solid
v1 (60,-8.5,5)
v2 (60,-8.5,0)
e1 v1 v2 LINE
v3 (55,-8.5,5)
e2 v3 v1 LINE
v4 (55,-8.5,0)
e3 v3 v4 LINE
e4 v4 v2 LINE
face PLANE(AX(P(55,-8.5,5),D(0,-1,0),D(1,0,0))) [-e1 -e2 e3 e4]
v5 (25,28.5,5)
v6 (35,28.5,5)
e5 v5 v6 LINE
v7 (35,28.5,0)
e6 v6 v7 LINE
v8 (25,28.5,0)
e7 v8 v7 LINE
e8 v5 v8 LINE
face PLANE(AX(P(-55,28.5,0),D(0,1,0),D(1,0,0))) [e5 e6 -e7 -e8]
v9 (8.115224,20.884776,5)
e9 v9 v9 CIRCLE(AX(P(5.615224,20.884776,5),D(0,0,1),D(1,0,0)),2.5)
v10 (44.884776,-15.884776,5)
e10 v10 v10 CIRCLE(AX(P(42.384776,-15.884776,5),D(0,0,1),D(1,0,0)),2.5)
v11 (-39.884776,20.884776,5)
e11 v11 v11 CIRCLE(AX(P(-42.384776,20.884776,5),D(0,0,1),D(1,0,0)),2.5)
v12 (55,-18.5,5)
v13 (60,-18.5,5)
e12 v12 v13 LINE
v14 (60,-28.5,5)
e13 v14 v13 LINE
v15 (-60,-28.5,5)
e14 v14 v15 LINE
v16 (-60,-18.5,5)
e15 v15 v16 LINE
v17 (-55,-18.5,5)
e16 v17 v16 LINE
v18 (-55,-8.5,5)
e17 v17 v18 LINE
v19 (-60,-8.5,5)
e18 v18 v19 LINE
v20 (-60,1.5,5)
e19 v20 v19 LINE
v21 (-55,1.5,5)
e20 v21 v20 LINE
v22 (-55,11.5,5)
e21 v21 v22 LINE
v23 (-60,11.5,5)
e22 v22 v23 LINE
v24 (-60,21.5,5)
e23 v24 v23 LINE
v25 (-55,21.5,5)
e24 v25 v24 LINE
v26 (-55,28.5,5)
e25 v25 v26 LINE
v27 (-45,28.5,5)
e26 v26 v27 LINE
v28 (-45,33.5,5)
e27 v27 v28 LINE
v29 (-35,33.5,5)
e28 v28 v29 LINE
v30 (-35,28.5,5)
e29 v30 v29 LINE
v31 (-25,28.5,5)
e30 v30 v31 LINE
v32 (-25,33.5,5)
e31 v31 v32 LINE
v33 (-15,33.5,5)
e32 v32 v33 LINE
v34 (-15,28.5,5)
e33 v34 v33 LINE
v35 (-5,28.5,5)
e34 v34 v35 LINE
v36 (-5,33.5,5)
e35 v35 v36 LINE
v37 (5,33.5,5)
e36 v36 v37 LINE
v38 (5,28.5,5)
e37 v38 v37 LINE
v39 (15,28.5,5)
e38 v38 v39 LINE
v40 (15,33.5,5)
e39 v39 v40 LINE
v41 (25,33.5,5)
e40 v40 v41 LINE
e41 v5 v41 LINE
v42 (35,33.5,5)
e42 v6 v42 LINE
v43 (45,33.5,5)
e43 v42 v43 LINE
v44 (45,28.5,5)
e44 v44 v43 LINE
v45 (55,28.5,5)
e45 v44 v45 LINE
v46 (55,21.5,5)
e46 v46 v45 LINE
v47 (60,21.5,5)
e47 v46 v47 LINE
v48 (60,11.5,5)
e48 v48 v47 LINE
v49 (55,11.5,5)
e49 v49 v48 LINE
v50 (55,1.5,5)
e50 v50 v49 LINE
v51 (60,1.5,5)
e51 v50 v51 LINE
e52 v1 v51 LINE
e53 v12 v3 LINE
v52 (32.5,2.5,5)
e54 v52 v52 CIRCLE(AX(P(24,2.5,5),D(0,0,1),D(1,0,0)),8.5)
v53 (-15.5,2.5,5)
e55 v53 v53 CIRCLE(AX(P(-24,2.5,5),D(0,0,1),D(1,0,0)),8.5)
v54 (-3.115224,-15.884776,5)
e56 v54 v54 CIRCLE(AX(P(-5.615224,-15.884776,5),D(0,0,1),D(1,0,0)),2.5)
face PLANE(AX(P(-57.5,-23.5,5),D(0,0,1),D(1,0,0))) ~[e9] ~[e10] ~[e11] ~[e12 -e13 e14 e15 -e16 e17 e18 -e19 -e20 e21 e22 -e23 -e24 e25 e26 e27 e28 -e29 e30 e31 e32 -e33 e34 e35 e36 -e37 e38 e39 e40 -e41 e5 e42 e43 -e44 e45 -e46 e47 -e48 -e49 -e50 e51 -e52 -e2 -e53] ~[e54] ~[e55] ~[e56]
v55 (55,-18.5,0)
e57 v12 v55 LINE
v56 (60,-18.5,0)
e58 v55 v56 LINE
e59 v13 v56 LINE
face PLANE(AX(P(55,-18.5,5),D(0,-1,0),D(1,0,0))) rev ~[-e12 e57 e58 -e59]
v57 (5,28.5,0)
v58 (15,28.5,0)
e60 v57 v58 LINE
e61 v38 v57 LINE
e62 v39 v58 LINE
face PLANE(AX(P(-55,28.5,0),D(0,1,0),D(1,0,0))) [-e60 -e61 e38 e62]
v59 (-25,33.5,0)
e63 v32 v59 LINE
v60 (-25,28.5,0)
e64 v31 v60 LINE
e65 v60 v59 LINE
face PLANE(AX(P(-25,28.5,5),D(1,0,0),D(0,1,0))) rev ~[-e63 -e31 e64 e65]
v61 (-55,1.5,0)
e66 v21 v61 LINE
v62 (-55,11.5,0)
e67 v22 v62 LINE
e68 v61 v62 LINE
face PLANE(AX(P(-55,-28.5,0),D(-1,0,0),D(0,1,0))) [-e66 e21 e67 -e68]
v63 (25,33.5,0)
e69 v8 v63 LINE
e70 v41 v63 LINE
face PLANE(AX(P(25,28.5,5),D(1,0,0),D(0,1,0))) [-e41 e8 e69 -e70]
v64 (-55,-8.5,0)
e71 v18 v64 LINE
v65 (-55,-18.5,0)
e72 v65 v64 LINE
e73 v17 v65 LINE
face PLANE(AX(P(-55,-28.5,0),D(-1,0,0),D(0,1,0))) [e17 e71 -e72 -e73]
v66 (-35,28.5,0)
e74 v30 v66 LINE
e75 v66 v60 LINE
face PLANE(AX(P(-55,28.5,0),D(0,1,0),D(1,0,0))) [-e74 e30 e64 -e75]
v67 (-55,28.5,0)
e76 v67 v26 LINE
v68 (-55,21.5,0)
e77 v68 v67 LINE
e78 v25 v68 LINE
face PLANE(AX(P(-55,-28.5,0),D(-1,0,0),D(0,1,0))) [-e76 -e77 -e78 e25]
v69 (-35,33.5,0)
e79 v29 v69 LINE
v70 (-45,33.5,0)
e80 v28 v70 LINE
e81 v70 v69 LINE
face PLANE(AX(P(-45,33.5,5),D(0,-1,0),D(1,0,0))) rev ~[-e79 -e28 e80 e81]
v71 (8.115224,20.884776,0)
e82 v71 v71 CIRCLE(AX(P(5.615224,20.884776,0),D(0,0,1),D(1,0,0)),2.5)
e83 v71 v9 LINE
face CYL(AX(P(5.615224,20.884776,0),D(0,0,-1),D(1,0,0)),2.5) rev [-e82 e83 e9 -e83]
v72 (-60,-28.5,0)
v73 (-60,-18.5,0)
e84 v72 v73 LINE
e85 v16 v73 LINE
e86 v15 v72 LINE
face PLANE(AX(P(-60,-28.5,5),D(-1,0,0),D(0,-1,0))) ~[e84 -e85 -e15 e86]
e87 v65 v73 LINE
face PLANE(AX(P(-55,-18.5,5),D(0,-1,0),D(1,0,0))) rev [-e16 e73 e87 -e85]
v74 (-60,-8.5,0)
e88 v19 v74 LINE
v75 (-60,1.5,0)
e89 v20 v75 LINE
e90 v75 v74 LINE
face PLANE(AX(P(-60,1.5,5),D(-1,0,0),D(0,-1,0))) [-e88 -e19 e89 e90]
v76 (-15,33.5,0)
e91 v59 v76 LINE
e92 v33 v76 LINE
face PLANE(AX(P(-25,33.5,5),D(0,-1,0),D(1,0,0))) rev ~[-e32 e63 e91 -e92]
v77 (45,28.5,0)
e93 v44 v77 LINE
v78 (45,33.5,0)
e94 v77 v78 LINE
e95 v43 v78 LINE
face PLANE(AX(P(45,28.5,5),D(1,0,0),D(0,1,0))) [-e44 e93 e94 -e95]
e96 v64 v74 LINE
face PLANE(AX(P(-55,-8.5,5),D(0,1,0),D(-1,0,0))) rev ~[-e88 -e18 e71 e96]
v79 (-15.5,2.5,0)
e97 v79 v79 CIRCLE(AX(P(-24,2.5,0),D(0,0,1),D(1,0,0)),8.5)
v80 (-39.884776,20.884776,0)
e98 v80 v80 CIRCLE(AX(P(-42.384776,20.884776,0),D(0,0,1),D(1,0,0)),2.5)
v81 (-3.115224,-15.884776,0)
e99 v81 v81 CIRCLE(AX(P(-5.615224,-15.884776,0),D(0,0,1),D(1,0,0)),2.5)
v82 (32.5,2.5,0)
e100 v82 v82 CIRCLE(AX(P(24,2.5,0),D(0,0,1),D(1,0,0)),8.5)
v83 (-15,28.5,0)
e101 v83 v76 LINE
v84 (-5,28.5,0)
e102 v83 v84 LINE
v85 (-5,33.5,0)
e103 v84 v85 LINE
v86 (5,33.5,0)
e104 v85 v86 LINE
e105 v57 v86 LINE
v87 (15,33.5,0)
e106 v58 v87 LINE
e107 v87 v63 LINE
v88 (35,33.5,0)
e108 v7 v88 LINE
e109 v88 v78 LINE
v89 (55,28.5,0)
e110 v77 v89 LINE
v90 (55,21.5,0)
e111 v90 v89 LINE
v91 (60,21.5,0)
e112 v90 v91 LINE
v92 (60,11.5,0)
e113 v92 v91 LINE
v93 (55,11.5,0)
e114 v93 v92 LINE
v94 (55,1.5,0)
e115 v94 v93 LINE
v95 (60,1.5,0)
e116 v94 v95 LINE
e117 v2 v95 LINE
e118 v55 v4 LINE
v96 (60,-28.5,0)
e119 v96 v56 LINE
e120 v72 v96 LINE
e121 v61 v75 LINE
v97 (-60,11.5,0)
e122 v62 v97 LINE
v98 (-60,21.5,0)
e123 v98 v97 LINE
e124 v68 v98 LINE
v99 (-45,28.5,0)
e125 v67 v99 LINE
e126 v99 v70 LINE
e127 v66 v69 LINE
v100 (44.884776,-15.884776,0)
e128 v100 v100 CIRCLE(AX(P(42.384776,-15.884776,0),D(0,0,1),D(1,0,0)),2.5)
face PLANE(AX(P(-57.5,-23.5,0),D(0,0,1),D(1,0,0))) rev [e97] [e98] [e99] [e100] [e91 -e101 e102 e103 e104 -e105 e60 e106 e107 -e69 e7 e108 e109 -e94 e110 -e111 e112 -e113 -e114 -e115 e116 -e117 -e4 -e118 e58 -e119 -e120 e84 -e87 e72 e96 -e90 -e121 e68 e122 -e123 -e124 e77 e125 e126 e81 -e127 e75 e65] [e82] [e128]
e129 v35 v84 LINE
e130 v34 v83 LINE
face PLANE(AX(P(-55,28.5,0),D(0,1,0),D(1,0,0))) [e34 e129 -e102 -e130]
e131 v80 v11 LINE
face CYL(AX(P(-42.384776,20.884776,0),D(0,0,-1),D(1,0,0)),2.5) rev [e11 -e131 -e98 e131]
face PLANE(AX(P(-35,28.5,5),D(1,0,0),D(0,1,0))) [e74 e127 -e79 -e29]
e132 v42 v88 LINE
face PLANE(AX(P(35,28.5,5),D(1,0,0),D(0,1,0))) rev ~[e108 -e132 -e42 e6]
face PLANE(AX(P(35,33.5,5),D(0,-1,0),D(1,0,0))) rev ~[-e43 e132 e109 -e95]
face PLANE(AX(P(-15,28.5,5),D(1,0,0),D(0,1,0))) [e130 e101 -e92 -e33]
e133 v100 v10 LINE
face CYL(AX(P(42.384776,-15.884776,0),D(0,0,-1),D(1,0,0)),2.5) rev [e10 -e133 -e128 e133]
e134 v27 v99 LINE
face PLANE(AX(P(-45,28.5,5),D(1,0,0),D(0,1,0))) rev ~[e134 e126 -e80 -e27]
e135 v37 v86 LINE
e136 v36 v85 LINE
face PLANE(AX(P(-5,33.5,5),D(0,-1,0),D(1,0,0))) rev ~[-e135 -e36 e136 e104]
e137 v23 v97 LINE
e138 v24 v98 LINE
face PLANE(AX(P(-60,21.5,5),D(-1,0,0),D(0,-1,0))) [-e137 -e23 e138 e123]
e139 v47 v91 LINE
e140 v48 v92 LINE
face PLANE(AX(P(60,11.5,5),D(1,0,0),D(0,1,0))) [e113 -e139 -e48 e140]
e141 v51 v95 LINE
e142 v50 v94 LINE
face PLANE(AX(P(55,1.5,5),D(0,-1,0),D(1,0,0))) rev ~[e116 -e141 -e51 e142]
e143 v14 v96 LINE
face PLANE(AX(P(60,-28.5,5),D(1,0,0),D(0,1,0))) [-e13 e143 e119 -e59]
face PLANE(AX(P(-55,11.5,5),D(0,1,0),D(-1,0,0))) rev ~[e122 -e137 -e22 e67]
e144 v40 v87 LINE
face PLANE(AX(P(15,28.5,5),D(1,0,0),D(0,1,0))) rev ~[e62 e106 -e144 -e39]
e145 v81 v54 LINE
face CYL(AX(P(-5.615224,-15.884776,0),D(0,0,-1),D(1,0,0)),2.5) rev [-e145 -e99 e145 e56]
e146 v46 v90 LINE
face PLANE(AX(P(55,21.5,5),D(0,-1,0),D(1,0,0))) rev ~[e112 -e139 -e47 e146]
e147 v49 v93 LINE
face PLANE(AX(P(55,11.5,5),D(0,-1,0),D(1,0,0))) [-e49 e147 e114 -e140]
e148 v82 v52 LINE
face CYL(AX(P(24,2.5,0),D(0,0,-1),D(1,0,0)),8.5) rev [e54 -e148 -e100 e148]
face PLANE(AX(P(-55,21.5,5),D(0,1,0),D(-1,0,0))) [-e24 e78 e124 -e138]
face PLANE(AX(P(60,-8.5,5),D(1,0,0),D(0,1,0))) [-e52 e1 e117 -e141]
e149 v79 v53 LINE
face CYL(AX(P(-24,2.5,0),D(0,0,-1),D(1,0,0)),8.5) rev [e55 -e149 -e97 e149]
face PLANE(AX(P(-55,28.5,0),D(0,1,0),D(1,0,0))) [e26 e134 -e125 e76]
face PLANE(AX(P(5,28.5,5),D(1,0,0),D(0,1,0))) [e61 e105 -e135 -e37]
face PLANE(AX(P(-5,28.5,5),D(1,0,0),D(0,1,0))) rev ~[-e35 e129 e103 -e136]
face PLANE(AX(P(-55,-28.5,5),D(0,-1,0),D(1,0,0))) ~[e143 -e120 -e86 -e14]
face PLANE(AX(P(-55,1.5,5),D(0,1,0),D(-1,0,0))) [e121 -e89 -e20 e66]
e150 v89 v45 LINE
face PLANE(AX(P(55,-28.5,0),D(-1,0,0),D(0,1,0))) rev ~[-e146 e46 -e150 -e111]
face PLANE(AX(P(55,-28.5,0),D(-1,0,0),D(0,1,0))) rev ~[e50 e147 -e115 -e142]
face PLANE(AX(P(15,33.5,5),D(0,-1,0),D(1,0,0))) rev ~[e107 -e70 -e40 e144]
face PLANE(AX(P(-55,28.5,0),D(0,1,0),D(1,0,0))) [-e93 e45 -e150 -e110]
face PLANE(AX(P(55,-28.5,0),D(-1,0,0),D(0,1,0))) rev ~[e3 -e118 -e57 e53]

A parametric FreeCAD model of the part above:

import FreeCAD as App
import Part
import Sketcher

doc = App.newDocument("Part")
body = doc.addObject("PartDesign::Body", "Body")

# Sketch on XY plane
sketch1 = body.newObject("Sketcher::SketchObject", "Sketch")
sketch1.AttachmentSupport = (doc.getObject("XY_Plane"), [""])
sketch1.MapMode = "FlatFace"
sketch1.addGeometry(Part.LineSegment(App.Vector(-55, 28.5, 0), App.Vector(-55, -28.5, 0)), False)
sketch1.addGeometry(Part.LineSegment(App.Vector(-55, -28.5, 0), App.Vector(55, -28.5, 0)), False)
sketch1.addGeometry(Part.LineSegment(App.Vector(55, -28.5, 0), App.Vector(55, 28.5, 0)), False)
sketch1.addGeometry(Part.LineSegment(App.Vector(55, 28.5, 0), App.Vector(-55, 28.5, 0)), False)
sketch1.addGeometry(Part.Circle(App.Vector(-5.6, -15.9, 0), App.Vector(0, 0, 1), 2.5), False)
sketch1.addGeometry(Part.Circle(App.Vector(42.4, -15.9, 0), App.Vector(0, 0, 1), 2.5), False)
sketch1.addGeometry(Part.Circle(App.Vector(-24, 2.5, 0), App.Vector(0, 0, 1), 8.5), False)
sketch1.addGeometry(Part.Circle(App.Vector(-42.4, 20.9, 0), App.Vector(0, 0, 1), 2.5), False)
sketch1.addGeometry(Part.Circle(App.Vector(24, 2.5, 0), App.Vector(0, 0, 1), 8.5), False)
sketch1.addGeometry(Part.Circle(App.Vector(5.6, 20.9, 0), App.Vector(0, 0, 1), 2.5), False)
sketch1.addConstraint(Sketcher.Constraint("Coincident", 0, 2, 1, 1))
sketch1.addConstraint(Sketcher.Constraint("Coincident", 1, 2, 2, 1))
sketch1.addConstraint(Sketcher.Constraint("Coincident", 2, 2, 3, 1))
sketch1.addConstraint(Sketcher.Constraint("Coincident", 3, 2, 0, 1))
sketch1.addConstraint(Sketcher.Constraint("Vertical", 0))
sketch1.addConstraint(Sketcher.Constraint("Horizontal", 1))
sketch1.addConstraint(Sketcher.Constraint("Vertical", 2))
sketch1.addConstraint(Sketcher.Constraint("Horizontal", 3))
sketch1.addConstraint(Sketcher.Constraint("Equal", 4, 5))
sketch1.addConstraint(Sketcher.Constraint("Equal", 5, 7))
sketch1.addConstraint(Sketcher.Constraint("Equal", 6, 8))
sketch1.addConstraint(Sketcher.Constraint("Equal", 7, 9))
sketch1.addConstraint(Sketcher.Constraint("Symmetric", 0, 2, 2, 2, -1, 1))
sketch1.addConstraint(Sketcher.Constraint("Symmetric", 6, 3, 8, 3, -2))
sketch1.addConstraint(Sketcher.Constraint("Horizontal", 4, 3, 5, 3))
sketch1.addConstraint(Sketcher.Constraint("Horizontal", 7, 3, 9, 3))
sketch1.addConstraint(Sketcher.Constraint("Diameter", 4, 5.0))
sketch1.addConstraint(Sketcher.Constraint("Diameter", 6, 17.0))
sketch1.addConstraint(Sketcher.Constraint("DistanceX", 1, 1, 1, 2, 110.0))
sketch1.addConstraint(Sketcher.Constraint("DistanceY", 0, 2, 0, 1, 57.0))
sketch1.addConstraint(Sketcher.Constraint("DistanceX", 6, 3, -1, 1, 24.0))
sketch1.addConstraint(Sketcher.Constraint("DistanceX", 4, 3, 5, 3, 48.0))
sketch1.addConstraint(Sketcher.Constraint("DistanceX", 7, 3, 9, 3, 48.0))
sketch1.addConstraint(Sketcher.Constraint("DistanceY", 0, 2, 6, 3, 31.0))
sketch1.addConstraint(Sketcher.Constraint("DistanceX", 4, 3, -1, 1, 5.615224))
sketch1.addConstraint(Sketcher.Constraint("DistanceY", 4, 3, -1, 1, 15.884776))
sketch1.addConstraint(Sketcher.Constraint("DistanceX", 7, 3, -1, 1, 42.384776))
sketch1.addConstraint(Sketcher.Constraint("DistanceY", -1, 1, 7, 3, 20.884776))
pad1 = body.newObject("PartDesign::Pad", "Pad")
pad1.Profile = sketch1
pad1.Length = 5

# Sketch on XY plane
sketch2 = body.newObject("Sketcher::SketchObject", "Sketch001")
sketch2.AttachmentSupport = (doc.getObject("XY_Plane"), [""])
sketch2.MapMode = "FlatFace"
sketch2.AttachmentOffset = App.Placement(App.Vector(0, 0, 5), App.Rotation())
sketch2.addGeometry(Part.LineSegment(App.Vector(55, -18, 0), App.Vector(55, -28, 0)), False)
sketch2.addGeometry(Part.LineSegment(App.Vector(55, -28, 0), App.Vector(60, -28, 0)), False)
sketch2.addGeometry(Part.LineSegment(App.Vector(60, -28, 0), App.Vector(60, -18, 0)), False)
sketch2.addGeometry(Part.LineSegment(App.Vector(60, -18, 0), App.Vector(55, -18, 0)), False)
sketch2.addConstraint(Sketcher.Constraint("Coincident", 0, 2, 1, 1))
sketch2.addConstraint(Sketcher.Constraint("Coincident", 1, 2, 2, 1))
sketch2.addConstraint(Sketcher.Constraint("Coincident", 2, 2, 3, 1))
sketch2.addConstraint(Sketcher.Constraint("Coincident", 3, 2, 0, 1))
sketch2.addConstraint(Sketcher.Constraint("Vertical", 0))
sketch2.addConstraint(Sketcher.Constraint("Horizontal", 1))
sketch2.addConstraint(Sketcher.Constraint("Vertical", 2))
sketch2.addConstraint(Sketcher.Constraint("Horizontal", 3))
sketch2.addConstraint(Sketcher.Constraint("DistanceX", 1, 1, 1, 2, 5.0))
sketch2.addConstraint(Sketcher.Constraint("DistanceY", 0, 2, 0, 1, 10.0))
sketch2.addConstraint(Sketcher.Constraint("DistanceX", -1, 1, 0, 2, 55.0))
sketch2.addConstraint(Sketcher.Constraint("DistanceY", 0, 2, -1, 1, 28.5))
pad2 = body.newObject("PartDesign::Pad", "Pad001")
pad2.Profile = sketch2
pad2.Length = 5
pad2.Reversed = True
doc.recompute()

linearpattern = body.newObject("PartDesign::LinearPattern", "LinearPattern")
linearpattern.Originals = [pad2]
linearpattern.Direction = (doc.getObject("Y_Axis"), [""])
linearpattern.Mode = "offset"
linearpattern.Offset = 20
linearpattern.Occurrences = 3
body.Tip = linearpattern
doc.recompute()

mirrored = body.newObject("PartDesign::Mirrored", "Mirrored")
mirrored.Originals = [pad2]
mirrored.MirrorPlane = (doc.getObject("YZ_Plane"), [""])
body.Tip = mirrored

# Sketch on XY plane
sketch3 = body.newObject("Sketcher::SketchObject", "Sketch002")
sketch3.AttachmentSupport = (doc.getObject("XY_Plane"), [""])
sketch3.MapMode = "FlatFace"
sketch3.AttachmentOffset = App.Placement(App.Vector(0, 0, 5), App.Rotation())
sketch3.addGeometry(Part.LineSegment(App.Vector(-55, -8, 0), App.Vector(-55, 2, 0)), False)
sketch3.addGeometry(Part.LineSegment(App.Vector(-55, 2, 0), App.Vector(-60, 2, 0)), False)
sketch3.addGeometry(Part.LineSegment(App.Vector(-60, 2, 0), App.Vector(-60, -8, 0)), False)
sketch3.addGeometry(Part.LineSegment(App.Vector(-60, -8, 0), App.Vector(-55, -8, 0)), False)
sketch3.addConstraint(Sketcher.Constraint("Coincident", 0, 2, 1, 1))
sketch3.addConstraint(Sketcher.Constraint("Coincident", 1, 2, 2, 1))
sketch3.addConstraint(Sketcher.Constraint("Coincident", 2, 2, 3, 1))
sketch3.addConstraint(Sketcher.Constraint("Coincident", 3, 2, 0, 1))
sketch3.addConstraint(Sketcher.Constraint("Vertical", 0))
sketch3.addConstraint(Sketcher.Constraint("Horizontal", 1))
sketch3.addConstraint(Sketcher.Constraint("Vertical", 2))
sketch3.addConstraint(Sketcher.Constraint("Horizontal", 3))
sketch3.addConstraint(Sketcher.Constraint("DistanceX", 1, 2, 1, 1, 5.0))
sketch3.addConstraint(Sketcher.Constraint("DistanceY", 0, 1, 0, 2, 10.0))
sketch3.addConstraint(Sketcher.Constraint("DistanceX", 0, 2, -1, 1, 55.0))
sketch3.addConstraint(Sketcher.Constraint("DistanceY", -1, 1, 0, 2, 1.5))
pad3 = body.newObject("PartDesign::Pad", "Pad002")
pad3.Profile = sketch3
pad3.Length = 5
pad3.Reversed = True

# Sketch on XY plane
sketch4 = body.newObject("Sketcher::SketchObject", "Sketch003")
sketch4.AttachmentSupport = (doc.getObject("XY_Plane"), [""])
sketch4.MapMode = "FlatFace"
sketch4.AttachmentOffset = App.Placement(App.Vector(0, 0, 5), App.Rotation())
sketch4.addGeometry(Part.LineSegment(App.Vector(-55, 12, 0), App.Vector(-55, 22, 0)), False)
sketch4.addGeometry(Part.LineSegment(App.Vector(-55, 22, 0), App.Vector(-60, 22, 0)), False)
sketch4.addGeometry(Part.LineSegment(App.Vector(-60, 22, 0), App.Vector(-60, 12, 0)), False)
sketch4.addGeometry(Part.LineSegment(App.Vector(-60, 12, 0), App.Vector(-55, 12, 0)), False)
sketch4.addConstraint(Sketcher.Constraint("Coincident", 0, 2, 1, 1))
sketch4.addConstraint(Sketcher.Constraint("Coincident", 1, 2, 2, 1))
sketch4.addConstraint(Sketcher.Constraint("Coincident", 2, 2, 3, 1))
sketch4.addConstraint(Sketcher.Constraint("Coincident", 3, 2, 0, 1))
sketch4.addConstraint(Sketcher.Constraint("Vertical", 0))
sketch4.addConstraint(Sketcher.Constraint("Horizontal", 1))
sketch4.addConstraint(Sketcher.Constraint("Vertical", 2))
sketch4.addConstraint(Sketcher.Constraint("Horizontal", 3))
sketch4.addConstraint(Sketcher.Constraint("DistanceX", 1, 2, 1, 1, 5.0))
sketch4.addConstraint(Sketcher.Constraint("DistanceY", 0, 1, 0, 2, 10.0))
sketch4.addConstraint(Sketcher.Constraint("DistanceX", 0, 2, -1, 1, 55.0))
sketch4.addConstraint(Sketcher.Constraint("DistanceY", -1, 1, 0, 2, 21.5))
pad4 = body.newObject("PartDesign::Pad", "Pad003")
pad4.Profile = sketch4
pad4.Length = 5
pad4.Reversed = True

# Sketch on XY plane
sketch5 = body.newObject("Sketcher::SketchObject", "Sketch004")
sketch5.AttachmentSupport = (doc.getObject("XY_Plane"), [""])
sketch5.MapMode = "FlatFace"
sketch5.AttachmentOffset = App.Placement(App.Vector(0, 0, 5), App.Rotation())
sketch5.addGeometry(Part.LineSegment(App.Vector(-5, 34, 0), App.Vector(-5, 28, 0)), False)
sketch5.addGeometry(Part.LineSegment(App.Vector(-5, 28, 0), App.Vector(5, 28, 0)), False)
sketch5.addGeometry(Part.LineSegment(App.Vector(5, 28, 0), App.Vector(5, 34, 0)), False)
sketch5.addGeometry(Part.LineSegment(App.Vector(5, 34, 0), App.Vector(-5, 34, 0)), False)
sketch5.addConstraint(Sketcher.Constraint("Coincident", 0, 2, 1, 1))
sketch5.addConstraint(Sketcher.Constraint("Coincident", 1, 2, 2, 1))
sketch5.addConstraint(Sketcher.Constraint("Coincident", 2, 2, 3, 1))
sketch5.addConstraint(Sketcher.Constraint("Coincident", 3, 2, 0, 1))
sketch5.addConstraint(Sketcher.Constraint("Vertical", 0))
sketch5.addConstraint(Sketcher.Constraint("Horizontal", 1))
sketch5.addConstraint(Sketcher.Constraint("Vertical", 2))
sketch5.addConstraint(Sketcher.Constraint("Horizontal", 3))
sketch5.addConstraint(Sketcher.Constraint("DistanceX", 1, 1, 1, 2, 10.0))
sketch5.addConstraint(Sketcher.Constraint("DistanceY", 0, 2, 0, 1, 5.0))
sketch5.addConstraint(Sketcher.Constraint("DistanceX", 0, 2, -1, 1, 5.0))
sketch5.addConstraint(Sketcher.Constraint("DistanceY", -1, 1, 0, 2, 28.5))
pad5 = body.newObject("PartDesign::Pad", "Pad004")
pad5.Profile = sketch5
pad5.Length = 5
pad5.Reversed = True
doc.recompute()

linearpattern2 = body.newObject("PartDesign::LinearPattern", "LinearPattern001")
linearpattern2.Originals = [pad5]
linearpattern2.Direction = (doc.getObject("X_Axis"), [""])
linearpattern2.Mode = "offset"
linearpattern2.Offset = 20
linearpattern2.Occurrences = 3
body.Tip = linearpattern2
doc.recompute()

linearpattern3 = body.newObject("PartDesign::LinearPattern", "LinearPattern002")
linearpattern3.Originals = [pad5]
linearpattern3.Direction = (doc.getObject("X_Axis"), [""])
linearpattern3.Mode = "offset"
linearpattern3.Offset = 20
linearpattern3.Occurrences = 3
linearpattern3.Reversed = True
body.Tip = linearpattern3

doc.recompute()
